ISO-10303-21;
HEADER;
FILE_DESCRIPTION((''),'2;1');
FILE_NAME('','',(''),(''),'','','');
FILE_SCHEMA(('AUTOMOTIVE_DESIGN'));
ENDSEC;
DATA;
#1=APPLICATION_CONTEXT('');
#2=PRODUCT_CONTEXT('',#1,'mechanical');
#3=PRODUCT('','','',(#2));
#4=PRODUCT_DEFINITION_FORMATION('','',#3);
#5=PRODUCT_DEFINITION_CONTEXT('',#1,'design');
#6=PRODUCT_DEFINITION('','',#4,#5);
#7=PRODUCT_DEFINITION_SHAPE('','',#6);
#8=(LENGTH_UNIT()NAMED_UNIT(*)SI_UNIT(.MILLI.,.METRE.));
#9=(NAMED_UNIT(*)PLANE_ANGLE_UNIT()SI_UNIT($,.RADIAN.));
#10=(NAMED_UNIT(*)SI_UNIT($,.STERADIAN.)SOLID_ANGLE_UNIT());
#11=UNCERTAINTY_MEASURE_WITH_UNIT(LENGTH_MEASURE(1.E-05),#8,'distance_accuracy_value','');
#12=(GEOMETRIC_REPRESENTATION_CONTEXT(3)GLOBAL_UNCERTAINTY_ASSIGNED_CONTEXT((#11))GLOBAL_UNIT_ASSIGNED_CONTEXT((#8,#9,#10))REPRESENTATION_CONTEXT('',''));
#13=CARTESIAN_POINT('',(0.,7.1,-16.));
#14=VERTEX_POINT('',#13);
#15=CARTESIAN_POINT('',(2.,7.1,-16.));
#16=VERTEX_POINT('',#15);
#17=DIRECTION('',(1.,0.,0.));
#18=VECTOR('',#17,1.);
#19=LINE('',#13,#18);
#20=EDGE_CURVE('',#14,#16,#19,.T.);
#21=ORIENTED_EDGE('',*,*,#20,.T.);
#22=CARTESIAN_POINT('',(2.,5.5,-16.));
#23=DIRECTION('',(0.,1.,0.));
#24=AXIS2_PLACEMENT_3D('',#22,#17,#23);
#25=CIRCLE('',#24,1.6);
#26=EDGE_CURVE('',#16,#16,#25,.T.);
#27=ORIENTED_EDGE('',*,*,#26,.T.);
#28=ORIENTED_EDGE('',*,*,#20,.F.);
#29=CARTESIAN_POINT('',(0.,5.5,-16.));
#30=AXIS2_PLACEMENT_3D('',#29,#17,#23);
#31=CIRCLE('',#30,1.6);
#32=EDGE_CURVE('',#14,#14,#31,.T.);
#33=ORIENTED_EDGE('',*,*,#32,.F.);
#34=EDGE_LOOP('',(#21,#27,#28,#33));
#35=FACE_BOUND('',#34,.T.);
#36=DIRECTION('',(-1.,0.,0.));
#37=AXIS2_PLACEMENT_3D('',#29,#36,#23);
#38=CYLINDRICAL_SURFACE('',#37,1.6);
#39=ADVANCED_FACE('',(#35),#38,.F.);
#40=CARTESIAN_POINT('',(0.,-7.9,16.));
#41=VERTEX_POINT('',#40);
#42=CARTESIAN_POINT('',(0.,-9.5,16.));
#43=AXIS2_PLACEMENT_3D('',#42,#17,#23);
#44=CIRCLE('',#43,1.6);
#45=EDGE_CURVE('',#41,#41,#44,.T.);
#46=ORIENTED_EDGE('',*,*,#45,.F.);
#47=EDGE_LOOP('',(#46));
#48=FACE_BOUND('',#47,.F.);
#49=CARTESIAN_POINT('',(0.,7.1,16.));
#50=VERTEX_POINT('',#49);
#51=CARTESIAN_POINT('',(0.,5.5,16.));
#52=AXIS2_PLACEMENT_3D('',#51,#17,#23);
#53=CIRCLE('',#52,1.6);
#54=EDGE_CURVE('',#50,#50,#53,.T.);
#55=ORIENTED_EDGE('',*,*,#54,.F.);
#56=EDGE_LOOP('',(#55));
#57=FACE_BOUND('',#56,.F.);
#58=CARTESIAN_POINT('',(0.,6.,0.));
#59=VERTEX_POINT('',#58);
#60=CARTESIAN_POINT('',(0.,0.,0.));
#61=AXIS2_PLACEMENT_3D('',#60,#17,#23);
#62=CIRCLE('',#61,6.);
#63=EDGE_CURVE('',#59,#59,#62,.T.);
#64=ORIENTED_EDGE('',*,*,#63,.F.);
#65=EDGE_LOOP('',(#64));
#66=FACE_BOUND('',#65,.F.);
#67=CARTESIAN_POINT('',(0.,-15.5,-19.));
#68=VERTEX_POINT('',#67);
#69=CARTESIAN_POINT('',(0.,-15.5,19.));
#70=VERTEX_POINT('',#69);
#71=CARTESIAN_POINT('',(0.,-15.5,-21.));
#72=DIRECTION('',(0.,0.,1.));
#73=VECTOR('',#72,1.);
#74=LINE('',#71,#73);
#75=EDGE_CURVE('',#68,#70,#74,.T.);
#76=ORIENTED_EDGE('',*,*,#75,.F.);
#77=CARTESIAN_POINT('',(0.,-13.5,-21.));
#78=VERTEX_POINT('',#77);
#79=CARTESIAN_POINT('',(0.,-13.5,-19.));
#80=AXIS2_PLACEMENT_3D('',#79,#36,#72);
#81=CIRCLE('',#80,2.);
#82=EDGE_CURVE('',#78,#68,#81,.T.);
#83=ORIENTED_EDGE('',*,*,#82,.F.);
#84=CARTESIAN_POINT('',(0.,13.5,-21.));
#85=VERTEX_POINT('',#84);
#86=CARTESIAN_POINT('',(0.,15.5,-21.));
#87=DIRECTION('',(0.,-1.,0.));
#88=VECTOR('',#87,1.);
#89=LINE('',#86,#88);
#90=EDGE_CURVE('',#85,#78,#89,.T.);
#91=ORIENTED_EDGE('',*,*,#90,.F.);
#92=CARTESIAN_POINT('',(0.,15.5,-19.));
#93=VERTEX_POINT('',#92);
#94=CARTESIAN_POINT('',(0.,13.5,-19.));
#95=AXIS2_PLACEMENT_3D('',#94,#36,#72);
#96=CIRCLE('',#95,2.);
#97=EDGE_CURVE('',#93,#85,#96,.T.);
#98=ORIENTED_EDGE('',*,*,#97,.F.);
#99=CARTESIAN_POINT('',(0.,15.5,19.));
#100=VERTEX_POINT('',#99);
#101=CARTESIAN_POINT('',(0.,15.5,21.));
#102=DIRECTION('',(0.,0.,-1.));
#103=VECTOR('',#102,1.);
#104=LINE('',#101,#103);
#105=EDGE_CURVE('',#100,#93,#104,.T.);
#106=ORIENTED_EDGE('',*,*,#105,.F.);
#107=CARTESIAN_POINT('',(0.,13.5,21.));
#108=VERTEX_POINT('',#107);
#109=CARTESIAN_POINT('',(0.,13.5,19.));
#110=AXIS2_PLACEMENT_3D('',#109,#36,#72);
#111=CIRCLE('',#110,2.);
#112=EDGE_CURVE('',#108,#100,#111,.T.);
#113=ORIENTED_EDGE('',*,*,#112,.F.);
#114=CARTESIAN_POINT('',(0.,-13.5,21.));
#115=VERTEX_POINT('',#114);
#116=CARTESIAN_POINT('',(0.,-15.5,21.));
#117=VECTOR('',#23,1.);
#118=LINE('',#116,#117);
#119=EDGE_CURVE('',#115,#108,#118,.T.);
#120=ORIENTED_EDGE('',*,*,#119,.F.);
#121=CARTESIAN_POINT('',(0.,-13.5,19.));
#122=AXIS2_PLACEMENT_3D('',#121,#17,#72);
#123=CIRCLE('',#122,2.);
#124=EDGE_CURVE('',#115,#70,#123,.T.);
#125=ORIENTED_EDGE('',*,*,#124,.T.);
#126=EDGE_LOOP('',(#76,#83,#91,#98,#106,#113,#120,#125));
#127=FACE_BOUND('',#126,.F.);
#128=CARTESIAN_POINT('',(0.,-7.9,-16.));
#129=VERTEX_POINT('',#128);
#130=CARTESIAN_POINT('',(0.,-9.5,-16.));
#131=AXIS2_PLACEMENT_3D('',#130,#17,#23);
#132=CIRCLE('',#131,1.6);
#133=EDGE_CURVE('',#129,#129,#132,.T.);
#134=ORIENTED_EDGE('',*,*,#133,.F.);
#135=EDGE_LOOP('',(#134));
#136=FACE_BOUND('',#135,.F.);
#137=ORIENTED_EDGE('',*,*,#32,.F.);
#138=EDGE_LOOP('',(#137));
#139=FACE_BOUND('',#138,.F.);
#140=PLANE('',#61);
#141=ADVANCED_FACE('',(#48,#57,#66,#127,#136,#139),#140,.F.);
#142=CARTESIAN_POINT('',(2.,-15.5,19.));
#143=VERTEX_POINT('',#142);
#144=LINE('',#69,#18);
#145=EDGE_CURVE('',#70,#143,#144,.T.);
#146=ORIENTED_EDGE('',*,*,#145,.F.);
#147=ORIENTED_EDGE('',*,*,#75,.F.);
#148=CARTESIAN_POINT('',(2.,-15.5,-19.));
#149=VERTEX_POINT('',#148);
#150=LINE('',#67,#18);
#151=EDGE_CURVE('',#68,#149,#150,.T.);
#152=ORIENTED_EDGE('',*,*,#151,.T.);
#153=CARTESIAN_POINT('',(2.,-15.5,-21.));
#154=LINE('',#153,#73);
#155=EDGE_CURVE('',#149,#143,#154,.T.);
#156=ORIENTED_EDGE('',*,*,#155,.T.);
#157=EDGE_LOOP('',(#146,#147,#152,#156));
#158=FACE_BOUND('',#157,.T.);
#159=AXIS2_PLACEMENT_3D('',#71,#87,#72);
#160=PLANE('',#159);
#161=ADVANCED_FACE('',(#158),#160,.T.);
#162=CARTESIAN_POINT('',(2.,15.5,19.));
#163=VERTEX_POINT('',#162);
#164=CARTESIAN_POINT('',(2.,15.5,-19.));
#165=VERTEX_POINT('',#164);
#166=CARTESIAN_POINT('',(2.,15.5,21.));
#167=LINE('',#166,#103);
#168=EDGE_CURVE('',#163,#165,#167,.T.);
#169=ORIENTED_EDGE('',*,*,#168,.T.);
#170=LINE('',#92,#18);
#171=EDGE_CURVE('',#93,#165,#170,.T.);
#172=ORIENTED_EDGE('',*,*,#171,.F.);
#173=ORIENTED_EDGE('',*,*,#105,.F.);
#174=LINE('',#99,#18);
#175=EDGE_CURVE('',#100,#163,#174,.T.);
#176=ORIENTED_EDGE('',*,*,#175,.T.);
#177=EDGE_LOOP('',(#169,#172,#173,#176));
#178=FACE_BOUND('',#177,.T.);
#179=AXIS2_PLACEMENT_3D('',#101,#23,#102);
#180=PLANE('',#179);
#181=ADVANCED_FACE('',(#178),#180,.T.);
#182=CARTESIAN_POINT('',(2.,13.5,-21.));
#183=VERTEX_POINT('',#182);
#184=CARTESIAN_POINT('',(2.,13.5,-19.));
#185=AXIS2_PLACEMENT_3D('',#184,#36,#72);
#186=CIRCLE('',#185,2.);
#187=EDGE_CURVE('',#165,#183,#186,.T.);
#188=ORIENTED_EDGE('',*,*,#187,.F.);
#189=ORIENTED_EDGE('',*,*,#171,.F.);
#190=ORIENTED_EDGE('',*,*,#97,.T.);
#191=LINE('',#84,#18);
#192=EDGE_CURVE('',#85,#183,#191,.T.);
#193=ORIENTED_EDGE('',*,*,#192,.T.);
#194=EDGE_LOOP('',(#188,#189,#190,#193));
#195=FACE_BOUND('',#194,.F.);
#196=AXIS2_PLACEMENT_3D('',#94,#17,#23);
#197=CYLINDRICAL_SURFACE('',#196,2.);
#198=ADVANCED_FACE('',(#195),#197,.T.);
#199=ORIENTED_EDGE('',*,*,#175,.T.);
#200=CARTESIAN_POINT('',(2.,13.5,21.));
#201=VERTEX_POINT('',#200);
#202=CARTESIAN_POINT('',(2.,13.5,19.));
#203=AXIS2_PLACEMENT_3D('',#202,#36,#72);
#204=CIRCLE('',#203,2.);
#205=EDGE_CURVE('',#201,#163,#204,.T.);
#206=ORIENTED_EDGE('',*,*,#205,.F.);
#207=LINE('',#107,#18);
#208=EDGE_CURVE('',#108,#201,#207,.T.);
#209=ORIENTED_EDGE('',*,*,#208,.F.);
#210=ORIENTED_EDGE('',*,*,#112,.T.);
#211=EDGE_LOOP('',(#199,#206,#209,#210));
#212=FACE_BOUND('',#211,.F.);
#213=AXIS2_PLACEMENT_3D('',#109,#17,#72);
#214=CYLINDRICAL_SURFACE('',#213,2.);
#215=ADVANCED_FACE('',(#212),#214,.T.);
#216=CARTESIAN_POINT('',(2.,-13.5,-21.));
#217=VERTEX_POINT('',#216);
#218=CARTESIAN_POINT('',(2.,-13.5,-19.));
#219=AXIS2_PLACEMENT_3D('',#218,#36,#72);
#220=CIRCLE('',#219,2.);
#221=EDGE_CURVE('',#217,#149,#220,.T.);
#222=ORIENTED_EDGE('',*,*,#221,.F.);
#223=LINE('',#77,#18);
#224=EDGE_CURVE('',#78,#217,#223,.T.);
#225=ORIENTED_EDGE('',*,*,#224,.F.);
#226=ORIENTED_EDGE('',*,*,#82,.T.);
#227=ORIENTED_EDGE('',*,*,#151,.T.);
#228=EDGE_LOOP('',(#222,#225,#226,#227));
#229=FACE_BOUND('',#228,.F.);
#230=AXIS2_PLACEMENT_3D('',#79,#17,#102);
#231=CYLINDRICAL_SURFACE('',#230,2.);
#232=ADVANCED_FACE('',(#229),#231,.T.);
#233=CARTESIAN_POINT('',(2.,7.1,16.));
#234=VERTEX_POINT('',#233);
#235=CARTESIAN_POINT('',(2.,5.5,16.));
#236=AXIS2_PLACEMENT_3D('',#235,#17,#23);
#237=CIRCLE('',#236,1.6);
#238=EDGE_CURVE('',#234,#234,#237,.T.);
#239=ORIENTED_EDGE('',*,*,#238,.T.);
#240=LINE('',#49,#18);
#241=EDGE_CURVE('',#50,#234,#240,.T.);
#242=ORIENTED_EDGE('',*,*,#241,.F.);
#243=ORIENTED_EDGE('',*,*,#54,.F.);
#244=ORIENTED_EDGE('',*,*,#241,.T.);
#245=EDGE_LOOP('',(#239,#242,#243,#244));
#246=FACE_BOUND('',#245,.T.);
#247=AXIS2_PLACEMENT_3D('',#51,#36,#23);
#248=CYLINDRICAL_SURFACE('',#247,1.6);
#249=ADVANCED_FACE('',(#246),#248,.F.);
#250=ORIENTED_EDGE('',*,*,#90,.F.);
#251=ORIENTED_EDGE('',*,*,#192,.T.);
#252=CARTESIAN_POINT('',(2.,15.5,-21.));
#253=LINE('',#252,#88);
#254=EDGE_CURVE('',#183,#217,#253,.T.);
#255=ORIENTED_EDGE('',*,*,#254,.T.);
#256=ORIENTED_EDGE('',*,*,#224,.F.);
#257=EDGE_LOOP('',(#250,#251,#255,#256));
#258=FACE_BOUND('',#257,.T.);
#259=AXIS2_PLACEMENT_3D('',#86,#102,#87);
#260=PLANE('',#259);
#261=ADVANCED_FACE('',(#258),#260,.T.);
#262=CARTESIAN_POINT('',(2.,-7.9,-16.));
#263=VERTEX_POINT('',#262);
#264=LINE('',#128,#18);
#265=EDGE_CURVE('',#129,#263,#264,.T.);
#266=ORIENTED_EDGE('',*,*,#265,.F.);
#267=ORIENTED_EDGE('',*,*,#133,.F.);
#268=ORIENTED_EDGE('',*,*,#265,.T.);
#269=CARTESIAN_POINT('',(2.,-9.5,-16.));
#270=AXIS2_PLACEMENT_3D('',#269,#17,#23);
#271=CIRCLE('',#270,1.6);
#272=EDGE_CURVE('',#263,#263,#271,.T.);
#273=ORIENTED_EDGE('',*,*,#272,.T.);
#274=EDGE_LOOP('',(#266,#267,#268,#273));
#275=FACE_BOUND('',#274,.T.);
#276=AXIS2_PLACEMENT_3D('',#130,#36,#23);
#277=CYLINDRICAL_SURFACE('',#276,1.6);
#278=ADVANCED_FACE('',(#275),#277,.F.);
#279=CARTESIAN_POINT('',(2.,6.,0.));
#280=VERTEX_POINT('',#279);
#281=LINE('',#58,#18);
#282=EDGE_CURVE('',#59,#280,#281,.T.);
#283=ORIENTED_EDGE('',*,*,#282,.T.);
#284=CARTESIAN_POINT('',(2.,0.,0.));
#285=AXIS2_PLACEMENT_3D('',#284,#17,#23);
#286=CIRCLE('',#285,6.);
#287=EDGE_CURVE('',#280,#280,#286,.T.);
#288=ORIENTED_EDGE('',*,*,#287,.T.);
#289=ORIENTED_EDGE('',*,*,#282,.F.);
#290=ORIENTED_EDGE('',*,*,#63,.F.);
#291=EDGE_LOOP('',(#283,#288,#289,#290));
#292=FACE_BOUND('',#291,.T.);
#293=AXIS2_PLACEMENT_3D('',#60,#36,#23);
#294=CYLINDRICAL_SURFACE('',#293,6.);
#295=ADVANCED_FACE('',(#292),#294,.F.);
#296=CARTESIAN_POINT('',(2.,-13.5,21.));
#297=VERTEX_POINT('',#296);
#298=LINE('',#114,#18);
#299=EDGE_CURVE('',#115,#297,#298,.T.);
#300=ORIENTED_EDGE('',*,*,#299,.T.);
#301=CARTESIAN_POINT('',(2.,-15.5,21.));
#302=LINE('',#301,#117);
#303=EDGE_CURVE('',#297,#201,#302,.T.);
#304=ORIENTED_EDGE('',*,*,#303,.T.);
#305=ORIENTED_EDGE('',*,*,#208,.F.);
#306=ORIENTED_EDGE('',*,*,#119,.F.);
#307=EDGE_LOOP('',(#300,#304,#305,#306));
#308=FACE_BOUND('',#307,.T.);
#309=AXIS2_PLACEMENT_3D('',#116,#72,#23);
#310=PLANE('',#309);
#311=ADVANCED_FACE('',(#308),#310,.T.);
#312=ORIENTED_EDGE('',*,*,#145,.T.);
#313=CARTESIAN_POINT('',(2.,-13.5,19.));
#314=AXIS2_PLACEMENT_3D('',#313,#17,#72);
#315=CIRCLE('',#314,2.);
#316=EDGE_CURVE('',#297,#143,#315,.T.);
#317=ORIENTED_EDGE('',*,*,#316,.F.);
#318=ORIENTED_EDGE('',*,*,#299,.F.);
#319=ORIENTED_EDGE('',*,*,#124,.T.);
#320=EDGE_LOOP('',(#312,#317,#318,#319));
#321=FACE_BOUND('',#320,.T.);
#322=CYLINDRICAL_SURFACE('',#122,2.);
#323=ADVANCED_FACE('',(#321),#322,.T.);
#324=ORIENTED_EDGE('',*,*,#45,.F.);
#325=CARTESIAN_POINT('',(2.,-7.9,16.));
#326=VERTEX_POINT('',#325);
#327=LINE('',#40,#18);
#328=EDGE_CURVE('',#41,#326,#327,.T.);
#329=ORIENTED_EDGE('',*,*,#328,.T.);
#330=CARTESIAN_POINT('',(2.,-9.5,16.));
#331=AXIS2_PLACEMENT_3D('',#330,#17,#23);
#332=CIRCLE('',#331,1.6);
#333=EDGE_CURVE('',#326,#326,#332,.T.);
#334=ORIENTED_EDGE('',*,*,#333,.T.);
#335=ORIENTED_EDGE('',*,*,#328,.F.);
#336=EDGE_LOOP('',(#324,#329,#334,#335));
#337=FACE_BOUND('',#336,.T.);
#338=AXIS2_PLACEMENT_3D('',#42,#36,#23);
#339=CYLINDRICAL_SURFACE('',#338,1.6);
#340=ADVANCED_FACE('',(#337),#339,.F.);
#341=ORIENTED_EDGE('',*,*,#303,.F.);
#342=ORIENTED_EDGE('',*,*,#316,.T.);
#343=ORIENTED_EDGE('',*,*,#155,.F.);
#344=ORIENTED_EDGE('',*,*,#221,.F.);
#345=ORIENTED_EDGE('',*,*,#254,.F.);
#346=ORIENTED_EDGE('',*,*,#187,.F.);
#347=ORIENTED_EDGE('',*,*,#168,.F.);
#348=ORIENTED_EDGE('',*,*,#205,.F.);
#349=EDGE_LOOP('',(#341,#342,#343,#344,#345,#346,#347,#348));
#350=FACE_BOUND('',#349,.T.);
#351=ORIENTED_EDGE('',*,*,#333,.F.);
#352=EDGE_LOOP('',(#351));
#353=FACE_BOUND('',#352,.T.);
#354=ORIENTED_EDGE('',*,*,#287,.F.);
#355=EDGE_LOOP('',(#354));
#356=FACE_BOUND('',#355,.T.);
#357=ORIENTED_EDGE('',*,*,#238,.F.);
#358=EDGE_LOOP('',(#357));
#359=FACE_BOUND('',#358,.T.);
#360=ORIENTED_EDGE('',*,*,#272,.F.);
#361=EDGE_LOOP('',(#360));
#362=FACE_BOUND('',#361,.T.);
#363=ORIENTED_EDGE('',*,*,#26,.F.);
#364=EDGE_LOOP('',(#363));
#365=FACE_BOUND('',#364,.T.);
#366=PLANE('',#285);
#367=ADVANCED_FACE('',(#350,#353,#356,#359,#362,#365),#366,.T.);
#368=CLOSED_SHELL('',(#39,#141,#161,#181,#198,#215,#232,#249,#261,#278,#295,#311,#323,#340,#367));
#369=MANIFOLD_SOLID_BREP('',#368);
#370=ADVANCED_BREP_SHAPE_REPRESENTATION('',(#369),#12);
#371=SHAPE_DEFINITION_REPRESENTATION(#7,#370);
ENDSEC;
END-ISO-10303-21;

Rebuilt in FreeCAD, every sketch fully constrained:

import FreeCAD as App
import Part
import Sketcher

V = App.Vector


def edges_at(feature, points):
    """Names of the edges that pass closest to the given points."""
    edges = feature.Shape.Edges
    near = lambda p: min(range(len(edges)), key=lambda i: edges[i].distToShape(Part.Vertex(*p))[0])
    return sorted({f"Edge{near(p) + 1}" for p in points})


def add_polygon(sketch, points):
    """Adds a closed chain of lines whose ends are joined by coincident constraints."""
    first, n = sketch.GeometryCount, len(points)
    for a, b in zip(points, points[1:] + points[:1]):
        sketch.addGeometry(Part.LineSegment(App.Vector(*a, 0), App.Vector(*b, 0)), False)
    for i in range(n):
        sketch.addConstraint(Sketcher.Constraint("Coincident", first + i, 2, first + (i + 1) % n, 1))

doc = App.newDocument("Part")
body = doc.addObject("PartDesign::Body", "Body")

# Sketch on YZ plane
sketch1 = body.newObject("Sketcher::SketchObject", "Sketch")
sketch1.AttachmentSupport = (doc.getObject("YZ_Plane"), [""])
sketch1.MapMode = "FlatFace"
add_polygon(sketch1, [(15.5, 21), (-15.5, 21), (-15.5, -21), (15.5, -21)])  # lines 0-3
sketch1.addGeometry(Part.Circle(V(-9.5, -16, 0), V(0, 0, 1), 1.6), False)  # 4
sketch1.addGeometry(Part.Circle(V(5.5, -16, 0), V(0, 0, 1), 1.6), False)  # 5
sketch1.addGeometry(Part.Circle(V(-9.5, 16, 0), V(0, 0, 1), 1.6), False)  # 6
sketch1.addGeometry(Part.Circle(V(0, 0, 0), V(0, 0, 1), 6), False)  # 7
sketch1.addGeometry(Part.Circle(V(5.5, 16, 0), V(0, 0, 1), 1.6), False)  # 8
sketch1.addConstraint([
    Sketcher.Constraint("Horizontal", 0),
    Sketcher.Constraint("Vertical", 1),
    Sketcher.Constraint("Horizontal", 2),
    Sketcher.Constraint("Vertical", 3),
    Sketcher.Constraint("Coincident", 7, 3, -1, 1),
    Sketcher.Constraint("Equal", 4, 5),
    Sketcher.Constraint("Equal", 5, 6),
    Sketcher.Constraint("Equal", 6, 8),
    Sketcher.Constraint("Symmetric", 0, 2, 2, 2, -1, 1),
    Sketcher.Constraint("Symmetric", 4, 3, 6, 3, -1),
    Sketcher.Constraint("Symmetric", 5, 3, 8, 3, -1),
    Sketcher.Constraint("Horizontal", 4, 3, 5, 3),
    Sketcher.Constraint("Diameter", 7, 12.0),
    Sketcher.Constraint("Diameter", 4, 3.2),
    Sketcher.Constraint("DistanceX", 0, 2, 0, 1, 31.0),
    Sketcher.Constraint("DistanceY", 1, 2, 1, 1, 42.0),
    Sketcher.Constraint("DistanceX", 4, 3, 5, 3, 15.0),
    Sketcher.Constraint("DistanceY", 6, 3, 0, 2, 5.0),
    Sketcher.Constraint("DistanceX", 5, 3, 2, 2, 10.0),
])
pad1 = body.newObject("PartDesign::Pad", "Pad")
pad1.Profile = sketch1
pad1.Length = 2
doc.recompute()

fillet = body.newObject("PartDesign::Fillet", "Fillet")
fillet.Base = (pad1, edges_at(pad1, [
    (1, 15.5, 21),
    (1, -15.5, 21),
    (1, -15.5, -21),
    (1, 15.5, -21),
]))
fillet.Radius = 2

doc.recompute()
